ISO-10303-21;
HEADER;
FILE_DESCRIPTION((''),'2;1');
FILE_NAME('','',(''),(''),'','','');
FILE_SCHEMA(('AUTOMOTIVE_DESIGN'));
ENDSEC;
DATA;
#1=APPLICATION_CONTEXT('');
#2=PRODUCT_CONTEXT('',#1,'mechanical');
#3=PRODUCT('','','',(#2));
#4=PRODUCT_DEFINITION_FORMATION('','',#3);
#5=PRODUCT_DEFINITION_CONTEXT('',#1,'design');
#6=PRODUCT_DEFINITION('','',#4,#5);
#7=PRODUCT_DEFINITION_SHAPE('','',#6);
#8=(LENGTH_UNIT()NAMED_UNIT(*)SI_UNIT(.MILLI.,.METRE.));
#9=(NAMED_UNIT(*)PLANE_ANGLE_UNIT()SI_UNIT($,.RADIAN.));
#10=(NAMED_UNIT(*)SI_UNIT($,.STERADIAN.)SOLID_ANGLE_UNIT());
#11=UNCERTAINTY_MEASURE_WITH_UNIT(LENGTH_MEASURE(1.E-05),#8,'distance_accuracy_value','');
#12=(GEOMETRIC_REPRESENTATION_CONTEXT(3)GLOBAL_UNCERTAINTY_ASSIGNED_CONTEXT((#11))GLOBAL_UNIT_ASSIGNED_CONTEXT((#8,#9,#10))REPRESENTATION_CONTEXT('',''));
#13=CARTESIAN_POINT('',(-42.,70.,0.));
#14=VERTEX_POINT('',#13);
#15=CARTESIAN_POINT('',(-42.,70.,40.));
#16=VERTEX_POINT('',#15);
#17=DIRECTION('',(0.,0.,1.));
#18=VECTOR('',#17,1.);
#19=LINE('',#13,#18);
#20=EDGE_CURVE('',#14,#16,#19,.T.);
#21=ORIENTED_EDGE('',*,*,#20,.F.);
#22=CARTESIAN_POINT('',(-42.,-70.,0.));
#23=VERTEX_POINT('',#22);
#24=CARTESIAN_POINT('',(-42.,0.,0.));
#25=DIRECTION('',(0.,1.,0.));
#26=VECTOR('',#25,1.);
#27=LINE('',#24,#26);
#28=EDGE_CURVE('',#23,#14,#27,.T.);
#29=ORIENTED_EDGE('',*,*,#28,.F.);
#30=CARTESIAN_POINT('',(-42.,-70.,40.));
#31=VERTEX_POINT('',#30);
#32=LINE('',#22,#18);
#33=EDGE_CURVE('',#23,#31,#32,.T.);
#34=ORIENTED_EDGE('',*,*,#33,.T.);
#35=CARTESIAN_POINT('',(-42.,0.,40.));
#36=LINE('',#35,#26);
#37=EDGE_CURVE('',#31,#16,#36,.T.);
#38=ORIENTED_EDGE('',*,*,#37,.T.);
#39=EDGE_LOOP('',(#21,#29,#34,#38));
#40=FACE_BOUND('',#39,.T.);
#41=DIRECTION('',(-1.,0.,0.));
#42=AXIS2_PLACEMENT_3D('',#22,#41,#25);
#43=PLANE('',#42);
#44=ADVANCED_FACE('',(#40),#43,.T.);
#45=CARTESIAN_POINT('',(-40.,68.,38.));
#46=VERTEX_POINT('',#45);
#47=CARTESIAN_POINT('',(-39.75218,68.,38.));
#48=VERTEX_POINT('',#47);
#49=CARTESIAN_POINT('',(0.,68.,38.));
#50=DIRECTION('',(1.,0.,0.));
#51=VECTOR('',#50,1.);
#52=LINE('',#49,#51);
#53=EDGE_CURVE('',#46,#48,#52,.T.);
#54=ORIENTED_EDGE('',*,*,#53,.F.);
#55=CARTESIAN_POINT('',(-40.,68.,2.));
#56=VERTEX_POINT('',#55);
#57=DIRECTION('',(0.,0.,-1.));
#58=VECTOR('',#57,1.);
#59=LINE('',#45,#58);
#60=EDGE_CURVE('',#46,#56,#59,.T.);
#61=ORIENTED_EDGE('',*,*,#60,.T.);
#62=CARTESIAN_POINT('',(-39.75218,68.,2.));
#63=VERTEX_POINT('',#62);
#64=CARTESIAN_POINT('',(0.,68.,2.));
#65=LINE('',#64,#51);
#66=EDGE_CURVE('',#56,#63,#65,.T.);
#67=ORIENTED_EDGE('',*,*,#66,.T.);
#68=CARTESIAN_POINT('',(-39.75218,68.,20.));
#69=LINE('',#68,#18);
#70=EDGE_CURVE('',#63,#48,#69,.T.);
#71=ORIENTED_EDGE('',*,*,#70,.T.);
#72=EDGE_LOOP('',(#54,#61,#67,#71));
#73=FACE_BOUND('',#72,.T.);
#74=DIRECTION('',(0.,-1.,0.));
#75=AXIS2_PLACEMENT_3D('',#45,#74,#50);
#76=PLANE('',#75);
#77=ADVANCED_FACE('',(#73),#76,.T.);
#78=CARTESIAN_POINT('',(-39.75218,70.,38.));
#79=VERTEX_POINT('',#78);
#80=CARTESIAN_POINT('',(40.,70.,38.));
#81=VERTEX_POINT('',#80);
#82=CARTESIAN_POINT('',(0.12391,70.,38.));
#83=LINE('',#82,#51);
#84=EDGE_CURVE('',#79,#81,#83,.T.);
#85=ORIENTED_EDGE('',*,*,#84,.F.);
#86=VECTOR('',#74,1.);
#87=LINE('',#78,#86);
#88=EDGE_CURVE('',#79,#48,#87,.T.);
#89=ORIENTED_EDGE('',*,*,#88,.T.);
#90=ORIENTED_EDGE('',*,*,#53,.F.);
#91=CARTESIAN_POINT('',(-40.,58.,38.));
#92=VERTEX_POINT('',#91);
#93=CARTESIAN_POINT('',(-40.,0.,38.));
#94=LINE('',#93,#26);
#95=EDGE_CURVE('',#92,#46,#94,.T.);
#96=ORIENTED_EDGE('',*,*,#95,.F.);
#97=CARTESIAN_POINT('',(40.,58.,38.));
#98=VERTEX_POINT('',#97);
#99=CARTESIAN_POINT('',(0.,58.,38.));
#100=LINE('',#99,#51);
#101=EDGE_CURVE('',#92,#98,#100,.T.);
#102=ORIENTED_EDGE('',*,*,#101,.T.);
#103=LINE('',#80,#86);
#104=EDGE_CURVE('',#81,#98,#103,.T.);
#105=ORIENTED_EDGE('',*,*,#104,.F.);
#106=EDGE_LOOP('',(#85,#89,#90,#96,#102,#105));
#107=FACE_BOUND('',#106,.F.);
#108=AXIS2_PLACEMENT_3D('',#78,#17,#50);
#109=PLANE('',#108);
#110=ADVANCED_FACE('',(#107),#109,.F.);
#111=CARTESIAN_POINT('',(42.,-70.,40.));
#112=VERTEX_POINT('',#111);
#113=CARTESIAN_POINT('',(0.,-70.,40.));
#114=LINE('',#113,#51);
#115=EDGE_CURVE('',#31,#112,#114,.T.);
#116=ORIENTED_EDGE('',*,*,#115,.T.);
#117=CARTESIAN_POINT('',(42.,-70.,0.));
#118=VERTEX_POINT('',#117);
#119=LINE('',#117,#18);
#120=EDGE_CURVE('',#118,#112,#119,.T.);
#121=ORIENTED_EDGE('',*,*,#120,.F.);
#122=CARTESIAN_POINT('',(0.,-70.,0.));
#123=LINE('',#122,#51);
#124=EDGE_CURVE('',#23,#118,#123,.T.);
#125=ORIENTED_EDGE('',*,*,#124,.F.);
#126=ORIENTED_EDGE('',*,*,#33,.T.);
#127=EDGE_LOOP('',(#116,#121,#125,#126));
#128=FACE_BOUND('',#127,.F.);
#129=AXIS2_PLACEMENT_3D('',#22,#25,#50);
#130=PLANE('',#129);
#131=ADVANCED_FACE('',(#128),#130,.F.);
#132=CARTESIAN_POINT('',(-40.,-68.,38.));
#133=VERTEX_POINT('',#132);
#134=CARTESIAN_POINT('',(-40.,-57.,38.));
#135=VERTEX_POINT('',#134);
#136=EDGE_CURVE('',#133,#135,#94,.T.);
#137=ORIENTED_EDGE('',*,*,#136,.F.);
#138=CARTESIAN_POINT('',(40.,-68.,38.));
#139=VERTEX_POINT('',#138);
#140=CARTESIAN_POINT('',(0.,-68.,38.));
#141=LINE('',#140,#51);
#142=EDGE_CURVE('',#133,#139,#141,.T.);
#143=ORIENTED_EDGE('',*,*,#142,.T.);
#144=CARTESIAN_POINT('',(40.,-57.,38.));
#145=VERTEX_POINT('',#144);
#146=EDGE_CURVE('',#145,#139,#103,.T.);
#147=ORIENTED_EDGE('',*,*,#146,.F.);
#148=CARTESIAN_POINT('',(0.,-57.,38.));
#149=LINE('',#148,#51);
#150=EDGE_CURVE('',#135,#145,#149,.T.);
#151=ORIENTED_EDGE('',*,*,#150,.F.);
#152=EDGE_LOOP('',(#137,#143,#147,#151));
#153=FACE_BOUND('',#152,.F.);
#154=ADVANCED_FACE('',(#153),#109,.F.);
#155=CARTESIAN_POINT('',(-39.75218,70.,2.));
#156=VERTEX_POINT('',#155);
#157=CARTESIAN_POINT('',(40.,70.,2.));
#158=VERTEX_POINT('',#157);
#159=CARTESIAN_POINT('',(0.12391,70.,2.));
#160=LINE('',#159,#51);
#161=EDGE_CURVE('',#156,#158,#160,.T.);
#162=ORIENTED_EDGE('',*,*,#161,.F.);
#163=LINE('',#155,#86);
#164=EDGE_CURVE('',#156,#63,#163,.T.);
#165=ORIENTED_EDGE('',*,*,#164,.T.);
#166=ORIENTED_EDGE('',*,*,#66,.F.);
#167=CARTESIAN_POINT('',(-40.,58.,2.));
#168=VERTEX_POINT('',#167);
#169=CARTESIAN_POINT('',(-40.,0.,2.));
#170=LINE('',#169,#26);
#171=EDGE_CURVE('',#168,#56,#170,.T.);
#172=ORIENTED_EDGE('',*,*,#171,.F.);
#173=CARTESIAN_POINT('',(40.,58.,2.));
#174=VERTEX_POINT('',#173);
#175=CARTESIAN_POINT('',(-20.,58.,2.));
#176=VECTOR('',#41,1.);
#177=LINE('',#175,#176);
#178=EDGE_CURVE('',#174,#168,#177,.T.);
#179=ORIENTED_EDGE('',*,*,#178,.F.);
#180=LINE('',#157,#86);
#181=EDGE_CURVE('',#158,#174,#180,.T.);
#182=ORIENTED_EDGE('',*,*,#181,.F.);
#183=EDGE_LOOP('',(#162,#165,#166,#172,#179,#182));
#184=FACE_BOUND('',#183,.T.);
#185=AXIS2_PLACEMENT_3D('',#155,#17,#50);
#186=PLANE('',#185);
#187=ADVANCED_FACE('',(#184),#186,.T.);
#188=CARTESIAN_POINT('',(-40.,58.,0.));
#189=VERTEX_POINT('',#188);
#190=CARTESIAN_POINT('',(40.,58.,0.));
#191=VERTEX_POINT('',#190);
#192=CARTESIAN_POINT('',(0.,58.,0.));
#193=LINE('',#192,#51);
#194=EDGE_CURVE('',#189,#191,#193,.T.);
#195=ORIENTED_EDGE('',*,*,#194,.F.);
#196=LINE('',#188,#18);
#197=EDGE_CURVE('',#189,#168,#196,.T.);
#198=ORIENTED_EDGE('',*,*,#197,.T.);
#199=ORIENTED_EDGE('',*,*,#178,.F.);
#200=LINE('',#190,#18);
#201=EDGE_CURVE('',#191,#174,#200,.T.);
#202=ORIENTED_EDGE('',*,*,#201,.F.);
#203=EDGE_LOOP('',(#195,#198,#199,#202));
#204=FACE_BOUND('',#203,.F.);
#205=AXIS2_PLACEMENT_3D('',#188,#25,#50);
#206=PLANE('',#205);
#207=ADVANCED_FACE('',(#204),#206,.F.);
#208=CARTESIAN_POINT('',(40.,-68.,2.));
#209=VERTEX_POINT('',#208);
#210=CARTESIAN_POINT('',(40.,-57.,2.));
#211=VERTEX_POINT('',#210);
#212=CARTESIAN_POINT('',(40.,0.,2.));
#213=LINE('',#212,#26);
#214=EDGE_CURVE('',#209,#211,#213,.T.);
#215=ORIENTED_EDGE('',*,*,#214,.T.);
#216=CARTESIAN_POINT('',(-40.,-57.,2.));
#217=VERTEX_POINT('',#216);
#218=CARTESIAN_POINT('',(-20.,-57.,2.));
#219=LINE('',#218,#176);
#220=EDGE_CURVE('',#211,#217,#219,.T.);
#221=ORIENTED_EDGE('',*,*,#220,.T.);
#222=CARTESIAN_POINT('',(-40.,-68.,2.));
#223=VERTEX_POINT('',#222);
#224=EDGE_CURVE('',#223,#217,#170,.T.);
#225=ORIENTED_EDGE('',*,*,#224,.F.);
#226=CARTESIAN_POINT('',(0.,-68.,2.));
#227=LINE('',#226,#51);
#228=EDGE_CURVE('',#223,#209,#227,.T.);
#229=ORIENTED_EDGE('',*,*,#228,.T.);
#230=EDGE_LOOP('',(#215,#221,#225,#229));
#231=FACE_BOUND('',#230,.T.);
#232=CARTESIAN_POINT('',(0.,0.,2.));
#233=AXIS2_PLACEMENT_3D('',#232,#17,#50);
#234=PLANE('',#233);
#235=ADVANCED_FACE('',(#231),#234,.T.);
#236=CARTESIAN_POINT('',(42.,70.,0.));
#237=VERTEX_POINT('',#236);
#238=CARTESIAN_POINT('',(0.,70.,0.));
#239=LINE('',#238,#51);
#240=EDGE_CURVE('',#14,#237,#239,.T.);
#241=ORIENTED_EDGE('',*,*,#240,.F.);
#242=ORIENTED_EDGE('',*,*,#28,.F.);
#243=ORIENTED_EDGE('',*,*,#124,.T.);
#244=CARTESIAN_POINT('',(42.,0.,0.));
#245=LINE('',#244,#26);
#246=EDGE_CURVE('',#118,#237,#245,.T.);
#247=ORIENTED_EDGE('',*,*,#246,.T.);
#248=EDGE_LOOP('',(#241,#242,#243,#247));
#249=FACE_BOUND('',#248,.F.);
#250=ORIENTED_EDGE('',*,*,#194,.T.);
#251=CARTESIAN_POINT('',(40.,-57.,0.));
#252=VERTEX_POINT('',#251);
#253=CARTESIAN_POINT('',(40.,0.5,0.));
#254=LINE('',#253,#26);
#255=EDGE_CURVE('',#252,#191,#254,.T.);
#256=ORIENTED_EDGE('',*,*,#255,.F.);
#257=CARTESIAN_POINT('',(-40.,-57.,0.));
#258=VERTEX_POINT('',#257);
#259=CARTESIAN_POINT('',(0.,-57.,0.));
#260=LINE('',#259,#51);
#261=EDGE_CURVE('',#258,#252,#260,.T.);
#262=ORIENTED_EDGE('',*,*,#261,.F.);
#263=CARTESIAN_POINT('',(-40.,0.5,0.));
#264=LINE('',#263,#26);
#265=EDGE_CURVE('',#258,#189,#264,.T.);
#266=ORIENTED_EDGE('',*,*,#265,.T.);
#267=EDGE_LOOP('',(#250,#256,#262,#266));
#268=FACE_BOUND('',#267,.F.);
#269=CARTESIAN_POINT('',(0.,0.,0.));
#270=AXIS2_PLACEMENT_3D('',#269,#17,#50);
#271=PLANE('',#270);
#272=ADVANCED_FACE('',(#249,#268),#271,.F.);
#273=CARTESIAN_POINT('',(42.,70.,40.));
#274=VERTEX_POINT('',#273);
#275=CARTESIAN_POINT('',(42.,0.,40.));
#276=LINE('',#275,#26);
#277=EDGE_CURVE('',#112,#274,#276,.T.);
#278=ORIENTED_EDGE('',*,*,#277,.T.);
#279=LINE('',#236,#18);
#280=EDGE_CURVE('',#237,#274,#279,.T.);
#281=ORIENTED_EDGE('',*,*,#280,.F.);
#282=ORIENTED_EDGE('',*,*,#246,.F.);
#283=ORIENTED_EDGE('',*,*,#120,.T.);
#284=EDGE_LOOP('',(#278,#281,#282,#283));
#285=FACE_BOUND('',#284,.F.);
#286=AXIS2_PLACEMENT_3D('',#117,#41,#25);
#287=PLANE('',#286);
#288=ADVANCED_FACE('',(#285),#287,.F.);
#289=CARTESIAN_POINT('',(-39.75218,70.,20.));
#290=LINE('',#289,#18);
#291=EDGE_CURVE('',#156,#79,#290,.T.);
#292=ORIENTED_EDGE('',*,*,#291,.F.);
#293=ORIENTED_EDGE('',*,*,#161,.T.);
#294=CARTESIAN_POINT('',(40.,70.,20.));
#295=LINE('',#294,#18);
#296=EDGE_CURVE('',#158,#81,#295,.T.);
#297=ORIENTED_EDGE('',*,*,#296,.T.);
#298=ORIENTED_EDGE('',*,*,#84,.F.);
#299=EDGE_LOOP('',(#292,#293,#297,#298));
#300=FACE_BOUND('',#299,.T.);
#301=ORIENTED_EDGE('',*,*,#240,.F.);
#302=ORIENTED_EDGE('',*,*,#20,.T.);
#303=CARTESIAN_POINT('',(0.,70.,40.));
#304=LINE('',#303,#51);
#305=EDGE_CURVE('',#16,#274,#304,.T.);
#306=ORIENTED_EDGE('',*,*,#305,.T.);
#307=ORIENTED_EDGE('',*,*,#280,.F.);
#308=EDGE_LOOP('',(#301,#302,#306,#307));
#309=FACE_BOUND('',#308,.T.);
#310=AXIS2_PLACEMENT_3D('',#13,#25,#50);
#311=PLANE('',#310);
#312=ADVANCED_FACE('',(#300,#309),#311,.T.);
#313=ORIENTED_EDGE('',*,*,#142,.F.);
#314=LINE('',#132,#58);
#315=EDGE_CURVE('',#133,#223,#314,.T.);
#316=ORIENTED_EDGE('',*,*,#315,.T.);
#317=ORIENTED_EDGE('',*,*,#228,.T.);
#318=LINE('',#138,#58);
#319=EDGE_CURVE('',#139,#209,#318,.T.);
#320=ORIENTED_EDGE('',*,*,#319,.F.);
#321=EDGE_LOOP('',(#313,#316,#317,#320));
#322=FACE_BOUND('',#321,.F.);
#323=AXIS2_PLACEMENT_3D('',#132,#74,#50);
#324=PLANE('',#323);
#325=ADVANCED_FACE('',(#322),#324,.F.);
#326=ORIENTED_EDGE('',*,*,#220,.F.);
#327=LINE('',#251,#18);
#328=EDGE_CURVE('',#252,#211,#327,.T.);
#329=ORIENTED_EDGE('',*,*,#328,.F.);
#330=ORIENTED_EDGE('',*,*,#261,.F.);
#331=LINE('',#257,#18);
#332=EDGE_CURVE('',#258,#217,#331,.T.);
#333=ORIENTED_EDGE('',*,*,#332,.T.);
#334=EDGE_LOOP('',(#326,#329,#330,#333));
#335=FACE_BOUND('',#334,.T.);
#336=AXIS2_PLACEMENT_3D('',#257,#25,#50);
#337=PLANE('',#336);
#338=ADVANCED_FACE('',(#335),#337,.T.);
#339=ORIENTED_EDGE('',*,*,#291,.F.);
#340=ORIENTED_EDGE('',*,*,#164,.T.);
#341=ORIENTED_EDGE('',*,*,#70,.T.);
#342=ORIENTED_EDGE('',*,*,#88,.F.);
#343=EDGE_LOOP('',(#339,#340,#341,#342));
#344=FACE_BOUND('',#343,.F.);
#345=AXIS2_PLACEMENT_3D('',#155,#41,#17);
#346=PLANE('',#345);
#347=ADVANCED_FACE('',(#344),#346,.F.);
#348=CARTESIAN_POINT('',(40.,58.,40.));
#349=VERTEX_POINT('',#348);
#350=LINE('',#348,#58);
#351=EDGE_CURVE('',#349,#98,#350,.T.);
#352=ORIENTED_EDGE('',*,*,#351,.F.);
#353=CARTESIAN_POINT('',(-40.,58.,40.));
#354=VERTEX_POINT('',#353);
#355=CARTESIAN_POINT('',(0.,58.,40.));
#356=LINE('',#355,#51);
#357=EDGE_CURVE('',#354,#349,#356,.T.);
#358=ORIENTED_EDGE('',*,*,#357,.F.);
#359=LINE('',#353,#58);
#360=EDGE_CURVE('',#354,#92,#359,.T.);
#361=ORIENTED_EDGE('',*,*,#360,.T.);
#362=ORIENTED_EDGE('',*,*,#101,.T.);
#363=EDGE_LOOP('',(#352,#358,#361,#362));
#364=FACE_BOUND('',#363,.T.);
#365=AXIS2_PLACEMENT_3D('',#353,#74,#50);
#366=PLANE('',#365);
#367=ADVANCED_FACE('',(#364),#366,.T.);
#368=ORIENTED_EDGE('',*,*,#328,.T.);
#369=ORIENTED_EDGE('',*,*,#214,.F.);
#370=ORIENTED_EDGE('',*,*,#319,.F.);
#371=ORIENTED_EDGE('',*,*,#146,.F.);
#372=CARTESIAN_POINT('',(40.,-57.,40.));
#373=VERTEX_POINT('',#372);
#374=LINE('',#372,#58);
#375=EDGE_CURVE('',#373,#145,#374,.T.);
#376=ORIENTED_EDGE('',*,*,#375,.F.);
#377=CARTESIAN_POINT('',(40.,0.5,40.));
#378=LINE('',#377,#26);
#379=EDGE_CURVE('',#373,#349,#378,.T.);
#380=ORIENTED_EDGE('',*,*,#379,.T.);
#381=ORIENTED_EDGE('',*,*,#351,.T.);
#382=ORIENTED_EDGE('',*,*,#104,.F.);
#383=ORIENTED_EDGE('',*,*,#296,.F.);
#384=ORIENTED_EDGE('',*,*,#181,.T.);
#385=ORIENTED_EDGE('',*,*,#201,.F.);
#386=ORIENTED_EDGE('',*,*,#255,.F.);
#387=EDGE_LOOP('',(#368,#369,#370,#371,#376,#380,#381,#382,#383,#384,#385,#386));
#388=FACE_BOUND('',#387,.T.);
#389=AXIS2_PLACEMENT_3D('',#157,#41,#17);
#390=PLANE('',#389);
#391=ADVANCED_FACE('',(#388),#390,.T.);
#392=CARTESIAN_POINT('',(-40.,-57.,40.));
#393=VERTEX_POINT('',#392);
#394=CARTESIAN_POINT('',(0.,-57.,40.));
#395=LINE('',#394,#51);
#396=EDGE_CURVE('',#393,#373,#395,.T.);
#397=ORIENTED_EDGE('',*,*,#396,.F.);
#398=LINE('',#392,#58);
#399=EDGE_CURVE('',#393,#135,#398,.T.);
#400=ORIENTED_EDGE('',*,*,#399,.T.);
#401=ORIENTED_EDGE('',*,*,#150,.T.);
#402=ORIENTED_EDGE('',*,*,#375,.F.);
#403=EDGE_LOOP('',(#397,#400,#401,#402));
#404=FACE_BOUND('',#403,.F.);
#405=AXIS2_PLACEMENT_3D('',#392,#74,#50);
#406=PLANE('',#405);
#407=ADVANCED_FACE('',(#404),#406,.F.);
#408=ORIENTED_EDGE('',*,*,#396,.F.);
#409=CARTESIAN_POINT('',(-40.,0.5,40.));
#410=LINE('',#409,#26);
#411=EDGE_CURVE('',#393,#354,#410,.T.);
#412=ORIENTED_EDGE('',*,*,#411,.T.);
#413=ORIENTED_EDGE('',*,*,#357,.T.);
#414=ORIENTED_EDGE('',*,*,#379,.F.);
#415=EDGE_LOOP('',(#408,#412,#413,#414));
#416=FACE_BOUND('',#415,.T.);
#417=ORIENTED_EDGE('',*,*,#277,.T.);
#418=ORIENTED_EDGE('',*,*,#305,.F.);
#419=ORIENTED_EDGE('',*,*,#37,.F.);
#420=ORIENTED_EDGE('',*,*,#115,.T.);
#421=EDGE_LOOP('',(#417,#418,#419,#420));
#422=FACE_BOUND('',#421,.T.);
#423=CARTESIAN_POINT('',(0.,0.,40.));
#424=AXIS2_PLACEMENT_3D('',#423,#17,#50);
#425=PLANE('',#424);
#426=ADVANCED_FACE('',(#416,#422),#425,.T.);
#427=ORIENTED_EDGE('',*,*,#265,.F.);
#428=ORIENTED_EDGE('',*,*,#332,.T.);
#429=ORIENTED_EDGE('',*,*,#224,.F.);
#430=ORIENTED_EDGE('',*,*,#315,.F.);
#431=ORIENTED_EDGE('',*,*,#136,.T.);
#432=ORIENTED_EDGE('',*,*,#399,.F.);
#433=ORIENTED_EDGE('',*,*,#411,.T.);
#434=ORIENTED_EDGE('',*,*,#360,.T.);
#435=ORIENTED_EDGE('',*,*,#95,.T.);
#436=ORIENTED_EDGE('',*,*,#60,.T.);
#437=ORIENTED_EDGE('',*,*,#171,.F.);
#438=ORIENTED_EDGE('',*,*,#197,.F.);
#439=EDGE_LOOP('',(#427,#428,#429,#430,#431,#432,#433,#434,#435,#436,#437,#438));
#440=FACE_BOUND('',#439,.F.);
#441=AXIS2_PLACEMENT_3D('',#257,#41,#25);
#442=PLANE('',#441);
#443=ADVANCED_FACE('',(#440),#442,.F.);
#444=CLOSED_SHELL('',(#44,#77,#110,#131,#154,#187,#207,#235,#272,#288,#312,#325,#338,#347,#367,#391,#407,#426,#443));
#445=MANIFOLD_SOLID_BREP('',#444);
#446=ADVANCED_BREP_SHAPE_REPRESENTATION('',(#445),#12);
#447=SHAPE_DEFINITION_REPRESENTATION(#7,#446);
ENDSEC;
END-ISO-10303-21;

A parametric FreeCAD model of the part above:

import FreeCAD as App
import Part
import Sketcher
Q = App.Units.Quantity

doc = App.newDocument("Part")
body = doc.addObject("PartDesign::Body", "Body")

sketch1 = body.newObject("Sketcher::SketchObject", "Sketch")
sketch1.AttachmentSupport = (doc.getObject("XY_Plane"), [""])
sketch1.MapMode = "FlatFace"
sketch1.addGeometry([
    Part.LineSegment(App.Vector(-42, 70, 0), App.Vector(-42, -70, 0)),
    Part.LineSegment(App.Vector(-42, -70, 0), App.Vector(42, -70, 0)),
    Part.LineSegment(App.Vector(42, -70, 0), App.Vector(42, 70, 0)),
    Part.LineSegment(App.Vector(42, 70, 0), App.Vector(-42, 70, 0)),
], False)
sketch1.addConstraint([
    Sketcher.Constraint("Coincident", 0, 2, 1, 1),
    Sketcher.Constraint("Coincident", 1, 2, 2, 1),
    Sketcher.Constraint("Coincident", 2, 2, 3, 1),
    Sketcher.Constraint("Coincident", 3, 2, 0, 1),
    Sketcher.Constraint("Vertical", 0),
    Sketcher.Constraint("Horizontal", 1),
    Sketcher.Constraint("Vertical", 2),
    Sketcher.Constraint("Horizontal", 3),
    Sketcher.Constraint("Symmetric", 0, 2, 2, 2, -1, 1),
    Sketcher.Constraint("DistanceX", 1, 1, 1, 2, Q("84 mm")),
    Sketcher.Constraint("DistanceY", 0, 2, 0, 1, Q("140 mm")),
])
pad1 = body.newObject("PartDesign::Pad", "Pad")
pad1.Profile = sketch1
pad1.Length = 40

sketch2 = body.newObject("Sketcher::SketchObject", "Sketch001")
sketch2.AttachmentSupport = (doc.getObject("XY_Plane"), [""])
sketch2.MapMode = "FlatFace"
sketch2.AttachmentOffset = App.Placement(App.Vector(0, 0, 38), App.Rotation())
sketch2.addGeometry([
    Part.LineSegment(App.Vector(-40, 68, 0), App.Vector(-40, -68, 0)),
    Part.LineSegment(App.Vector(-40, -68, 0), App.Vector(40, -68, 0)),
    Part.LineSegment(App.Vector(40, -68, 0), App.Vector(40, 68, 0)),
    Part.LineSegment(App.Vector(40, 68, 0), App.Vector(-40, 68, 0)),
], False)
sketch2.addConstraint([
    Sketcher.Constraint("Coincident", 0, 2, 1, 1),
    Sketcher.Constraint("Coincident", 1, 2, 2, 1),
    Sketcher.Constraint("Coincident", 2, 2, 3, 1),
    Sketcher.Constraint("Coincident", 3, 2, 0, 1),
    Sketcher.Constraint("Vertical", 0),
    Sketcher.Constraint("Horizontal", 1),
    Sketcher.Constraint("Vertical", 2),
    Sketcher.Constraint("Horizontal", 3),
    Sketcher.Constraint("Symmetric", 0, 2, 2, 2, -1, 1),
    Sketcher.Constraint("DistanceX", 1, 1, 1, 2, Q("80 mm")),
    Sketcher.Constraint("DistanceY", 0, 2, 0, 1, Q("136 mm")),
])
pocket1 = body.newObject("PartDesign::Pocket", "Pocket")
pocket1.Profile = sketch2
pocket1.Length = 36

sketch3 = body.newObject("Sketcher::SketchObject", "Sketch002")
sketch3.AttachmentSupport = (doc.getObject("XY_Plane"), [""])
sketch3.MapMode = "FlatFace"
sketch3.addGeometry([
    Part.LineSegment(App.Vector(-40, 58, 0), App.Vector(-40, -57, 0)),
    Part.LineSegment(App.Vector(-40, -57, 0), App.Vector(40, -57, 0)),
    Part.LineSegment(App.Vector(40, -57, 0), App.Vector(40, 58, 0)),
    Part.LineSegment(App.Vector(40, 58, 0), App.Vector(-40, 58, 0)),
], False)
sketch3.addConstraint([
    Sketcher.Constraint("Coincident", 0, 2, 1, 1),
    Sketcher.Constraint("Coincident", 1, 2, 2, 1),
    Sketcher.Constraint("Coincident", 2, 2, 3, 1),
    Sketcher.Constraint("Coincident", 3, 2, 0, 1),
    Sketcher.Constraint("Vertical", 0),
    Sketcher.Constraint("Horizontal", 1),
    Sketcher.Constraint("Vertical", 2),
    Sketcher.Constraint("Horizontal", 3),
    Sketcher.Constraint("DistanceX", 1, 1, 1, 2, Q("80 mm")),
    Sketcher.Constraint("DistanceY", 0, 2, 0, 1, Q("115 mm")),
    Sketcher.Constraint("DistanceX", 0, 2, -1, 1, Q("40 mm")),
    Sketcher.Constraint("DistanceY", 0, 2, -1, 1, Q("57 mm")),
])
pocket2 = body.newObject("PartDesign::Pocket", "Pocket001")
pocket2.Profile = sketch3
pocket2.Length = 4
pocket2.Reversed = True

sketch4 = body.newObject("Sketcher::SketchObject", "Sketch003")
sketch4.AttachmentSupport = (doc.getObject("XZ_Plane"), [""])
sketch4.MapMode = "FlatFace"
sketch4.AttachmentOffset = App.Placement(App.Vector(0, 0, -70), App.Rotation())
sketch4.addGeometry([
    Part.LineSegment(App.Vector(-40, 38, 0), App.Vector(-40, 2, 0)),
    Part.LineSegment(App.Vector(-40, 2, 0), App.Vector(40, 2, 0)),
    Part.LineSegment(App.Vector(40, 2, 0), App.Vector(40, 38, 0)),
    Part.LineSegment(App.Vector(40, 38, 0), App.Vector(-40, 38, 0)),
], False)
sketch4.addConstraint([
    Sketcher.Constraint("Coincident", 0, 2, 1, 1),
    Sketcher.Constraint("Coincident", 1, 2, 2, 1),
    Sketcher.Constraint("Coincident", 2, 2, 3, 1),
    Sketcher.Constraint("Coincident", 3, 2, 0, 1),
    Sketcher.Constraint("Vertical", 0),
    Sketcher.Constraint("Horizontal", 1),
    Sketcher.Constraint("Vertical", 2),
    Sketcher.Constraint("Horizontal", 3),
    Sketcher.Constraint("DistanceY", 0, 2, 0, 1, Q("36 mm")),
    Sketcher.Constraint("DistanceY", -1, 1, 0, 2, Q("2 mm")),
    Sketcher.Constraint("DistanceX", -1, 1, 1, 2, Q("40 mm")),
    Sketcher.Constraint("DistanceX", 1, 1, 1, 2, Q("79.75218 mm")),
])
pocket3 = body.newObject("PartDesign::Pocket", "Pocket002")
pocket3.Profile = sketch4
pocket3.Length = 2
pocket3.Reversed = True

sketch5 = body.newObject("Sketcher::SketchObject", "Sketch004")
sketch5.AttachmentSupport = (doc.getObject("XY_Plane"), [""])
sketch5.MapMode = "FlatFace"
sketch5.AttachmentOffset = App.Placement(App.Vector(0, 0, 40), App.Rotation())
sketch5.addGeometry([
    Part.LineSegment(App.Vector(-40, 58, 0), App.Vector(-40, -57, 0)),
    Part.LineSegment(App.Vector(-40, -57, 0), App.Vector(40, -57, 0)),
    Part.LineSegment(App.Vector(40, -57, 0), App.Vector(40, 58, 0)),
    Part.LineSegment(App.Vector(40, 58, 0), App.Vector(-40, 58, 0)),
], False)
sketch5.addConstraint([
    Sketcher.Constraint("Coincident", 0, 2, 1, 1),
    Sketcher.Constraint("Coincident", 1, 2, 2, 1),
    Sketcher.Constraint("Coincident", 2, 2, 3, 1),
    Sketcher.Constraint("Coincident", 3, 2, 0, 1),
    Sketcher.Constraint("Vertical", 0),
    Sketcher.Constraint("Horizontal", 1),
    Sketcher.Constraint("Vertical", 2),
    Sketcher.Constraint("Horizontal", 3),
    Sketcher.Constraint("DistanceX", 1, 1, 1, 2, Q("80 mm")),
    Sketcher.Constraint("DistanceY", 0, 2, 0, 1, Q("115 mm")),
    Sketcher.Constraint("DistanceX", 0, 2, -1, 1, Q("40 mm")),
    Sketcher.Constraint("DistanceY", 0, 2, -1, 1, Q("57 mm")),
])
pocket4 = body.newObject("PartDesign::Pocket", "Pocket003")
pocket4.Profile = sketch5
pocket4.Length = 2

doc.recompute()
